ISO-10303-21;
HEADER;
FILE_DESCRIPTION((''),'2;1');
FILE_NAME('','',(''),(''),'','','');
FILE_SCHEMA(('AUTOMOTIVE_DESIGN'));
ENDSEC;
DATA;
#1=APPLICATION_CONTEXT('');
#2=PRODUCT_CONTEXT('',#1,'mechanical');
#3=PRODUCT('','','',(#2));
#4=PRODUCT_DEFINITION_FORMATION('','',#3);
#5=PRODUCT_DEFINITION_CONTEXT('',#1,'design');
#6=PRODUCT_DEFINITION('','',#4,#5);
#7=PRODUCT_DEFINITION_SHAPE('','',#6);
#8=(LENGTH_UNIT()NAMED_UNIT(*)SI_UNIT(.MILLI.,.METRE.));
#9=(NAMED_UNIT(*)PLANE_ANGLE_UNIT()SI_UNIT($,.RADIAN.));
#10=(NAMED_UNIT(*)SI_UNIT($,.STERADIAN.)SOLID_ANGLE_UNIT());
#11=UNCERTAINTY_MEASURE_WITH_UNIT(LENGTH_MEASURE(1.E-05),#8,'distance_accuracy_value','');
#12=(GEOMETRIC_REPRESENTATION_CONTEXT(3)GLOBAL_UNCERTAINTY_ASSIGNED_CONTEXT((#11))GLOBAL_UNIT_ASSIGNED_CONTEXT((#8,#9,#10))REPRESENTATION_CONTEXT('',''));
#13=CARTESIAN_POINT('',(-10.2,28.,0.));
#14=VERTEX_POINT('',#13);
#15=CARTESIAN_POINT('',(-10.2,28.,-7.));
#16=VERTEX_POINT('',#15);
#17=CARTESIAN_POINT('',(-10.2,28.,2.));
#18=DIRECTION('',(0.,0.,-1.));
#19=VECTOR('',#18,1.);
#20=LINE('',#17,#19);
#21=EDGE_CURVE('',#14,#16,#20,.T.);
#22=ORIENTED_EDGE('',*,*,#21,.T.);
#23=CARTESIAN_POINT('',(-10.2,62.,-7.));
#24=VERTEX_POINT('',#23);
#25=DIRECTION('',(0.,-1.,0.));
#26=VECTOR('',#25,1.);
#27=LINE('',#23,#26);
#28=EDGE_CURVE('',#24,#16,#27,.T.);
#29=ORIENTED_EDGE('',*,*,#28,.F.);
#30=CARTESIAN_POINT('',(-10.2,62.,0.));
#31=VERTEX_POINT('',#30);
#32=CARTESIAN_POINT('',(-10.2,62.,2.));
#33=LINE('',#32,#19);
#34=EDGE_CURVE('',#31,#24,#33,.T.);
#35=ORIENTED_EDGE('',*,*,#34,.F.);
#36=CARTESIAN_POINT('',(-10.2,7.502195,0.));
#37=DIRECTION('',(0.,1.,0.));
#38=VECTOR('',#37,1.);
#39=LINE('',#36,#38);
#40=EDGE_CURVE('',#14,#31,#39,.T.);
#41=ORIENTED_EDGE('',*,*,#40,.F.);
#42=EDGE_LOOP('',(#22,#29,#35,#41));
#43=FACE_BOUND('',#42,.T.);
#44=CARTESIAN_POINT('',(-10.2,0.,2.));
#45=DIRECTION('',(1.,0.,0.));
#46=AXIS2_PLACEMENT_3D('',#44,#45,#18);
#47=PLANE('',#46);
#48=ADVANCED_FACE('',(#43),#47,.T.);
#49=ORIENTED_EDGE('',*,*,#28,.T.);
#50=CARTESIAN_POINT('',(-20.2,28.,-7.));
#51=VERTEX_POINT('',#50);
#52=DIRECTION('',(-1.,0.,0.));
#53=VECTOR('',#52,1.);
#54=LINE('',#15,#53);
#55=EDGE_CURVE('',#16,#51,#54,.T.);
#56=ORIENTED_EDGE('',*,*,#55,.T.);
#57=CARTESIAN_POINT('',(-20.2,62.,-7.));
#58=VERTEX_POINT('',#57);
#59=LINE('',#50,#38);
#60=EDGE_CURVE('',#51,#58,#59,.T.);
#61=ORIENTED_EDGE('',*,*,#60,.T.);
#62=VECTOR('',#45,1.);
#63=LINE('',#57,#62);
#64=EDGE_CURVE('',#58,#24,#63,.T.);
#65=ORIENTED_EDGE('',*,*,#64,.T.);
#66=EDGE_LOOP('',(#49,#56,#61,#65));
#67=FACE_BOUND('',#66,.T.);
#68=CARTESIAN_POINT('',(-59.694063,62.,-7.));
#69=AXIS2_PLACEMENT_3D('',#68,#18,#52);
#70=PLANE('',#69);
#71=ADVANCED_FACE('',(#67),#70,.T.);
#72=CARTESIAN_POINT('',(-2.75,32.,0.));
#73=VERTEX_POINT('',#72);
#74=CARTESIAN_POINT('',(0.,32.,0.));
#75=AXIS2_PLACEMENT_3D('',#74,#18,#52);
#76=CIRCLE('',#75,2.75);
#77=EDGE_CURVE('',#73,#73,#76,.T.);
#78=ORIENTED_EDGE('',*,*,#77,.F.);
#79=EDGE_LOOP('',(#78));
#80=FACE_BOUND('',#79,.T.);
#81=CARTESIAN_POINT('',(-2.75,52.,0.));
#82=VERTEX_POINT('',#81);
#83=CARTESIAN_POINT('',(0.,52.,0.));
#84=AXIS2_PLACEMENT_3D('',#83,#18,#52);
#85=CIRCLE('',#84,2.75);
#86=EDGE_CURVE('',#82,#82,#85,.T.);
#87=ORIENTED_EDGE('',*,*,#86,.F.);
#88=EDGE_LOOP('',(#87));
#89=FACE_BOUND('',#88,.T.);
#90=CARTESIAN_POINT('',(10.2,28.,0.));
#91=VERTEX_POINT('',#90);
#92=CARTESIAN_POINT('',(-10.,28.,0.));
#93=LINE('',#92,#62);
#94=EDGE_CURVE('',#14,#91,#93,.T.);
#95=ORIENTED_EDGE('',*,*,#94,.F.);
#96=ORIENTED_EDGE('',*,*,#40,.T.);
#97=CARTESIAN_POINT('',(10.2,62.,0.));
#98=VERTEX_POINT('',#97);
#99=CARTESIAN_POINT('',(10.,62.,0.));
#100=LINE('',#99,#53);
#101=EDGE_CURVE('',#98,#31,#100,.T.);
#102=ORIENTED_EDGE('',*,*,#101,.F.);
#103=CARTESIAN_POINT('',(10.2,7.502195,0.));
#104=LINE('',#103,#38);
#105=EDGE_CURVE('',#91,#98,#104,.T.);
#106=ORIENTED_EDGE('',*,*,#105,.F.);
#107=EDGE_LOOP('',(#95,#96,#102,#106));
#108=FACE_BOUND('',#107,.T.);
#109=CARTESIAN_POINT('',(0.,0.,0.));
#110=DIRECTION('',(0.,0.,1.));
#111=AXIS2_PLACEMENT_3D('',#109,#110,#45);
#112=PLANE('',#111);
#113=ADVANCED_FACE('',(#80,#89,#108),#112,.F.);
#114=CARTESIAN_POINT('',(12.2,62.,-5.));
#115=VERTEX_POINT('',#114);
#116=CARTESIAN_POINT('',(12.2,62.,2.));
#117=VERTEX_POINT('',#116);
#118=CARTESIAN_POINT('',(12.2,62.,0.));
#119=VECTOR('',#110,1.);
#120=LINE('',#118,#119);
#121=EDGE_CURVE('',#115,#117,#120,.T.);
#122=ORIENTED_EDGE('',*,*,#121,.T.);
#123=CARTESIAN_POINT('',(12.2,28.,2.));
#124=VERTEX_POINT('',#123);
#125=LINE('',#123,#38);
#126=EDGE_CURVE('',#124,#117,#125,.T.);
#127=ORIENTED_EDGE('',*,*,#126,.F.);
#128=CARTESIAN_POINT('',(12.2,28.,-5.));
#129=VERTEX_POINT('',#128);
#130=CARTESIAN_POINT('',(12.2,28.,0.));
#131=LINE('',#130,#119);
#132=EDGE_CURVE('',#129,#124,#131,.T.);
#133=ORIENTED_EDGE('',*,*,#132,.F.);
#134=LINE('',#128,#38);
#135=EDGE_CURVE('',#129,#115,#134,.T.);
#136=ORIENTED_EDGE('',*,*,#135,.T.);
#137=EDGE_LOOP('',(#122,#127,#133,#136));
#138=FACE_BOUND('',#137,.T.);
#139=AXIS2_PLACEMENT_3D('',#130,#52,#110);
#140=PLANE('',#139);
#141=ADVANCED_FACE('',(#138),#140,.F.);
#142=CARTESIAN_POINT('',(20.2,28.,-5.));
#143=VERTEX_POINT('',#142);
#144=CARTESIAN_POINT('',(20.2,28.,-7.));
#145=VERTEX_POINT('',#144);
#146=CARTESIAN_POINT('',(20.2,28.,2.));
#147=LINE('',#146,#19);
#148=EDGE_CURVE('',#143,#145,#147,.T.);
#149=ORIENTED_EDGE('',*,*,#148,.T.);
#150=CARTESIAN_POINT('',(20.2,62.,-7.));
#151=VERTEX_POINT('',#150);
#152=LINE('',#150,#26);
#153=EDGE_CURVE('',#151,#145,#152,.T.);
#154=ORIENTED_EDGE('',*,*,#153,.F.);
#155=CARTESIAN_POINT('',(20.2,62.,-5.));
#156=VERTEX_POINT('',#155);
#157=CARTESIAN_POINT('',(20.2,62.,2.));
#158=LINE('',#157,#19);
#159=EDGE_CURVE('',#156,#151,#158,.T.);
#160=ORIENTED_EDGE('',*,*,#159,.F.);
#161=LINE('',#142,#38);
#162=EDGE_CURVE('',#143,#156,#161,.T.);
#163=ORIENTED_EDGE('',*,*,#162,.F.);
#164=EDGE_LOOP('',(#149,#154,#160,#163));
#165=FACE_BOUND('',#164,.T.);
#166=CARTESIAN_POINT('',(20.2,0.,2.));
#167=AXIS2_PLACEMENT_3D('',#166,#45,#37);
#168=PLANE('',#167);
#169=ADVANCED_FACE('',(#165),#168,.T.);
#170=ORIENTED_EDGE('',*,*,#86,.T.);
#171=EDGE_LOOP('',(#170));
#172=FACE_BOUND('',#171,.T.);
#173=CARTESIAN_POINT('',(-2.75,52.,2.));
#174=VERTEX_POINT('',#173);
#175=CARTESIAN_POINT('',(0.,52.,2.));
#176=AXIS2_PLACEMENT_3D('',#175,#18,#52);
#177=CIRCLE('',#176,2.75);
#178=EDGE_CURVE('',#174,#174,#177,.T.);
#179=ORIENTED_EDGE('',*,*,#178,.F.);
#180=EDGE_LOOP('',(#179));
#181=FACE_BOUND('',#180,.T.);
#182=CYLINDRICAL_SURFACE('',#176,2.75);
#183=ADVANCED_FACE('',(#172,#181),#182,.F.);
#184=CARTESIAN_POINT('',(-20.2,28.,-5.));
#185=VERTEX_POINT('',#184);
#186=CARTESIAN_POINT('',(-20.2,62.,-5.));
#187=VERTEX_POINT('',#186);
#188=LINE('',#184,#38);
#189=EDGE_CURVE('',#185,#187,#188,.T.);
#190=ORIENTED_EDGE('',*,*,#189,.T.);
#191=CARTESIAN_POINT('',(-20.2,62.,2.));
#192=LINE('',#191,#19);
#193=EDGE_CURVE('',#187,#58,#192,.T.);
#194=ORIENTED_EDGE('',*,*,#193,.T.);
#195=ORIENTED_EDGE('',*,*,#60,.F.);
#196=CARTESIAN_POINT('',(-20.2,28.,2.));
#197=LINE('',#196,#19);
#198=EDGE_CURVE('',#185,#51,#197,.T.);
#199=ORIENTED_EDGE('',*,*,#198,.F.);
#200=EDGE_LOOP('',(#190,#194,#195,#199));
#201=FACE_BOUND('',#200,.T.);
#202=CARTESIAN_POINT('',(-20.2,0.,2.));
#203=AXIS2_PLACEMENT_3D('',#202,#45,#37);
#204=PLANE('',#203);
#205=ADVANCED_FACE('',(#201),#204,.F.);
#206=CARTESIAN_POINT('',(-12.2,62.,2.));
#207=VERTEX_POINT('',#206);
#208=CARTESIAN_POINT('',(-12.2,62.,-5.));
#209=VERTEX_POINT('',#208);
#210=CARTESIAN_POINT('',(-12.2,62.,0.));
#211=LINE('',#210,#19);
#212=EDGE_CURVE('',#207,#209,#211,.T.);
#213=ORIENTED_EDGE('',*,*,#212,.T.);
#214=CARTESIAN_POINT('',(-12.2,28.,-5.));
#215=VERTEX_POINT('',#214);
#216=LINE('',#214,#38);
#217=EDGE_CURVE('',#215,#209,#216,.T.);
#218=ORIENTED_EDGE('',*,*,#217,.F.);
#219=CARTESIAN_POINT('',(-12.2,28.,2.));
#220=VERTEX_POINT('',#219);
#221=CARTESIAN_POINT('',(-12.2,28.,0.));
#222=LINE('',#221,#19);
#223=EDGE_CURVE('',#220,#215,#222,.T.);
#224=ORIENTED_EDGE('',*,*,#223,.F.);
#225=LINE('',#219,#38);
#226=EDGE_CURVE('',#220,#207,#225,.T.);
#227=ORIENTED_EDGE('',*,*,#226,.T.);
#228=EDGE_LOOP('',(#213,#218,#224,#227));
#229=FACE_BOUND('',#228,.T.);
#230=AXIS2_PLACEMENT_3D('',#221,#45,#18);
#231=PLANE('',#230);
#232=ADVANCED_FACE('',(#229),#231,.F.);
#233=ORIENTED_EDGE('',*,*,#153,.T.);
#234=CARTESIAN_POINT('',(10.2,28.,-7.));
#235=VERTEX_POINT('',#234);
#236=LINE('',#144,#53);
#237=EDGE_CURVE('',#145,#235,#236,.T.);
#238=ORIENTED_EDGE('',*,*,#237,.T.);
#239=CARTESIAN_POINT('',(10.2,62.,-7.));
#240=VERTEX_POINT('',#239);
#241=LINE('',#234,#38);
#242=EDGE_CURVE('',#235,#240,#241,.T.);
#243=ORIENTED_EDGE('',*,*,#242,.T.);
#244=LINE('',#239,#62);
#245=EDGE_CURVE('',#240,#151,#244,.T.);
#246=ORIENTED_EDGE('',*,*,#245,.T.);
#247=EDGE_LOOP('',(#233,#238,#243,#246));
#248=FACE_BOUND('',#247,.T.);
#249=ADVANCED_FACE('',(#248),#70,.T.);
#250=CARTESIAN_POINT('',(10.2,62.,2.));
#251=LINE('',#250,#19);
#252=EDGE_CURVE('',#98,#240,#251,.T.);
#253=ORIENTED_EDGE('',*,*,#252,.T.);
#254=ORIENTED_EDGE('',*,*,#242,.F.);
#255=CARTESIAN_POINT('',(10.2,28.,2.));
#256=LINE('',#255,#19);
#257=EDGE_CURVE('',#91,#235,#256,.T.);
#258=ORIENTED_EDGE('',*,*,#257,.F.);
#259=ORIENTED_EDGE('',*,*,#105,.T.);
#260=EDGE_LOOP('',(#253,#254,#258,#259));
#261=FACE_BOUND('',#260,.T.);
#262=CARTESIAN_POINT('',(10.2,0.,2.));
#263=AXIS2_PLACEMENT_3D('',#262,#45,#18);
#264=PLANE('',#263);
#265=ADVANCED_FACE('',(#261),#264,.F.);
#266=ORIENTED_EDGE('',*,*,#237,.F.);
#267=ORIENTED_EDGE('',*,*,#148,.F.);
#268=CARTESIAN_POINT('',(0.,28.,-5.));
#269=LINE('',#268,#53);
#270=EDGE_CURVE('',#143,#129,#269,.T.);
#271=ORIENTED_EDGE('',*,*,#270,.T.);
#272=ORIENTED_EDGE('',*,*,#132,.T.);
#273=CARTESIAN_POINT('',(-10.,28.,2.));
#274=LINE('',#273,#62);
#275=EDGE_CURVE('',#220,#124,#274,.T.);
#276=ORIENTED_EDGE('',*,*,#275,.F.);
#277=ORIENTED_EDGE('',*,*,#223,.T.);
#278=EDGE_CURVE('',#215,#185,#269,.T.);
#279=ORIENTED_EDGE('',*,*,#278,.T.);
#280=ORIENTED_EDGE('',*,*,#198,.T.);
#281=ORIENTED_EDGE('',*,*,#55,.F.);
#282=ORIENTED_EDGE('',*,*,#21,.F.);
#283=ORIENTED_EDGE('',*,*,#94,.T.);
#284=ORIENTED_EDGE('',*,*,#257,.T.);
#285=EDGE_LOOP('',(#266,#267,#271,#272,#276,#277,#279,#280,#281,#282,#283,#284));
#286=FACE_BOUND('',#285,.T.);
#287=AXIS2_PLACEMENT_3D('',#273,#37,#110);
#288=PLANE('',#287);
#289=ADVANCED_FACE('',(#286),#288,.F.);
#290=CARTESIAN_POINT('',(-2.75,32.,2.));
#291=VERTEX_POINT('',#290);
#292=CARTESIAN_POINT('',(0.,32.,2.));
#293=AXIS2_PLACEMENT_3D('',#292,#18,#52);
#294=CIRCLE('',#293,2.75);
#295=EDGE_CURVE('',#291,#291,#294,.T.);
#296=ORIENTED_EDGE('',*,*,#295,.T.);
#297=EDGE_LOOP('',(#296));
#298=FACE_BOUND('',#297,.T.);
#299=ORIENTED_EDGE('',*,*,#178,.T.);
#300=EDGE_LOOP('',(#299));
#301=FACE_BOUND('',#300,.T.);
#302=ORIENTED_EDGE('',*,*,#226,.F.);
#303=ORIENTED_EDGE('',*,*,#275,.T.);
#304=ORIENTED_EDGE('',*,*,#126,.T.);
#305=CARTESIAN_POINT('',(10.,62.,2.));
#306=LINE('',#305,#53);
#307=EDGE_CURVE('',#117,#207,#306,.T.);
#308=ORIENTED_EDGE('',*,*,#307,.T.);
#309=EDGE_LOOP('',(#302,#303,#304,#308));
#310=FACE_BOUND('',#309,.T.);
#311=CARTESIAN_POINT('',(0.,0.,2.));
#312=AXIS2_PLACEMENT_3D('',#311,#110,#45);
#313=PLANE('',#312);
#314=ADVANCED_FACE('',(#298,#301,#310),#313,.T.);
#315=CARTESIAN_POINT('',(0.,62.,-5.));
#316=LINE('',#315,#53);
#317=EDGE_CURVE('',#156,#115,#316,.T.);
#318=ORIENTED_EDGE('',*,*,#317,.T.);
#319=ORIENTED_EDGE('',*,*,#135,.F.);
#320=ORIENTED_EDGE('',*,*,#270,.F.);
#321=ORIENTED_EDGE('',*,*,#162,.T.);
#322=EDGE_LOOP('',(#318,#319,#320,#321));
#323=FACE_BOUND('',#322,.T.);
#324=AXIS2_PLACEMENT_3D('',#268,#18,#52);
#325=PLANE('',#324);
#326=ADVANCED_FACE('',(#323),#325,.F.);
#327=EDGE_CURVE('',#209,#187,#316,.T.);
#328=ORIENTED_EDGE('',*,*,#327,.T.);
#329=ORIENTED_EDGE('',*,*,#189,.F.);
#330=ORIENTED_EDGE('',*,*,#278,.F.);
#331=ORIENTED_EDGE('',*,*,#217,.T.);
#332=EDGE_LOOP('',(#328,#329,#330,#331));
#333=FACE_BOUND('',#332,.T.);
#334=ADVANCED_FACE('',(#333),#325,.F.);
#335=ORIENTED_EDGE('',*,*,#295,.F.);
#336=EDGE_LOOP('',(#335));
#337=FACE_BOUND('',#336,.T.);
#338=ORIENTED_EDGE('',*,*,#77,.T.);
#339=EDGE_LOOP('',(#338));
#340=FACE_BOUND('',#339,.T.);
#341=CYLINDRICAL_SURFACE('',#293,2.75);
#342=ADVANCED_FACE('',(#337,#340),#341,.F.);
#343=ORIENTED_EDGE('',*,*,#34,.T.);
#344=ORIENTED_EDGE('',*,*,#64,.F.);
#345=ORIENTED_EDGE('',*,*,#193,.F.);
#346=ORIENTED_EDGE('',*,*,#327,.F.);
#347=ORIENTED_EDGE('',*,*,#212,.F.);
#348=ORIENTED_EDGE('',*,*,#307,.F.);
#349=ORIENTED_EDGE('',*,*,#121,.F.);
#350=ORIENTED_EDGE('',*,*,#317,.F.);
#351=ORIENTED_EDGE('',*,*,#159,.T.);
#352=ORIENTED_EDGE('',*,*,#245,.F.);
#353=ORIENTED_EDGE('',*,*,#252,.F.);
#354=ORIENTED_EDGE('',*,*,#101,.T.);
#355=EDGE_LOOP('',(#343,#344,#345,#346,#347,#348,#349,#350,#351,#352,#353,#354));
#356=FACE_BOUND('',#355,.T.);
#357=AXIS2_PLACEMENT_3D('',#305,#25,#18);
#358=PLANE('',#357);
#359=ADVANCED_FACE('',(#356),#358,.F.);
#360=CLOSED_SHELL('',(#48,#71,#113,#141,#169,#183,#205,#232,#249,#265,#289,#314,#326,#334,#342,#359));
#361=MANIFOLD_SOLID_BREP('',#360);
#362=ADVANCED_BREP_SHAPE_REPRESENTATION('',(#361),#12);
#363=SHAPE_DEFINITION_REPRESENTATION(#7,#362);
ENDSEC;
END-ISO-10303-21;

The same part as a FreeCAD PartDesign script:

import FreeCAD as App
import Part
import Sketcher

V = App.Vector


def add_polygon(sketch, points):
    """Adds a closed chain of lines whose ends are joined by coincident constraints."""
    first, n = sketch.GeometryCount, len(points)
    for a, b in zip(points, points[1:] + points[:1]):
        sketch.addGeometry(Part.LineSegment(App.Vector(*a, 0), App.Vector(*b, 0)), False)
    for i in range(n):
        sketch.addConstraint(Sketcher.Constraint("Coincident", first + i, 2, first + (i + 1) % n, 1))

doc = App.newDocument("Part")
body = doc.addObject("PartDesign::Body", "Body")

sketch1 = body.newObject("Sketcher::SketchObject", "Sketch")
sketch1.AttachmentSupport = (doc.getObject("XY_Plane"), [""])
sketch1.MapMode = "FlatFace"
add_polygon(sketch1, [(-10, 62), (-10, 28), (10, 28), (10, 62)])
sketch1.addGeometry(Part.Circle(V(0, 32, 0), V(0, 0, 1), 2.8), False)
sketch1.addGeometry(Part.Circle(V(0, 52, 0), V(0, 0, 1), 2.8), False)
sketch1.addConstraint(Sketcher.Constraint("Vertical", 0))
sketch1.addConstraint(Sketcher.Constraint("Horizontal", 1))
sketch1.addConstraint(Sketcher.Constraint("Vertical", 2))
sketch1.addConstraint(Sketcher.Constraint("Horizontal", 3))
sketch1.addConstraint(Sketcher.Constraint("Equal", 4, 5))
sketch1.addConstraint(Sketcher.Constraint("PointOnObject", 4, 3, -2))
sketch1.addConstraint(Sketcher.Constraint("PointOnObject", 5, 3, -2))
sketch1.addConstraint(Sketcher.Constraint("Diameter", 4, 5.5))
sketch1.addConstraint(Sketcher.Constraint("DistanceX", 1, 1, 1, 2, 20.0))
sketch1.addConstraint(Sketcher.Constraint("DistanceY", 0, 2, 0, 1, 34.0))
sketch1.addConstraint(Sketcher.Constraint("DistanceY", -1, 1, 4, 3, 32.0))
sketch1.addConstraint(Sketcher.Constraint("DistanceY", -1, 1, 5, 3, 52.0))
sketch1.addConstraint(Sketcher.Constraint("DistanceX", 0, 2, -1, 1, 10.0))
sketch1.addConstraint(Sketcher.Constraint("DistanceY", -1, 1, 0, 2, 28.0))
pad1 = body.newObject("PartDesign::Pad", "Pad")
pad1.Profile = sketch1
pad1.Length = 2
body2 = doc.addObject("PartDesign::Body", "Body001")

sketch2 = body2.newObject("Sketcher::SketchObject", "Sketch001")
sketch2.AttachmentSupport = (doc.getObject("XY_Plane001"), [""])
sketch2.MapMode = "FlatFace"
add_polygon(sketch2, [(-10, 62), (-10, 28), (-20, 28), (-20, 62)])
sketch2.addConstraint(Sketcher.Constraint("Vertical", 0))
sketch2.addConstraint(Sketcher.Constraint("Horizontal", 1))
sketch2.addConstraint(Sketcher.Constraint("Vertical", 2))
sketch2.addConstraint(Sketcher.Constraint("Horizontal", 3))
sketch2.addConstraint(Sketcher.Constraint("DistanceX", 1, 2, 1, 1, 10.0))
sketch2.addConstraint(Sketcher.Constraint("DistanceY", 0, 2, 0, 1, 34.0))
sketch2.addConstraint(Sketcher.Constraint("DistanceY", -1, 1, 0, 2, 28.0))
sketch2.addConstraint(Sketcher.Constraint("DistanceX", 0, 2, -1, 1, 10.2))
pad2 = body2.newObject("PartDesign::Pad", "Pad001")
pad2.Profile = sketch2
pad2.Length = 2
body3 = doc.addObject("PartDesign::Body", "Body002")

sketch3 = body3.newObject("Sketcher::SketchObject", "Sketch002")
sketch3.AttachmentSupport = (doc.getObject("XY_Plane002"), [""])
sketch3.MapMode = "FlatFace"
add_polygon(sketch3, [(20, 62), (20, 28), (10, 28), (10, 62)])
sketch3.addConstraint(Sketcher.Constraint("Vertical", 0))
sketch3.addConstraint(Sketcher.Constraint("Horizontal", 1))
sketch3.addConstraint(Sketcher.Constraint("Vertical", 2))
sketch3.addConstraint(Sketcher.Constraint("Horizontal", 3))
sketch3.addConstraint(Sketcher.Constraint("DistanceX", 1, 2, 1, 1, 10.0))
sketch3.addConstraint(Sketcher.Constraint("DistanceY", 0, 2, 0, 1, 34.0))
sketch3.addConstraint(Sketcher.Constraint("DistanceY", -1, 1, 0, 2, 28.0))
sketch3.addConstraint(Sketcher.Constraint("DistanceX", -1, 1, 0, 2, 20.2))
pad3 = body3.newObject("PartDesign::Pad", "Pad002")
pad3.Profile = sketch3
pad3.Length = 2
body2.AllowCompound = True
doc.recompute()

boolean = body2.newObject("PartDesign::Boolean", "Boolean")
boolean.Type = "Fuse"
boolean.addObjects([body3])

sketch4 = body2.newObject("Sketcher::SketchObject", "Sketch003")
sketch4.AttachmentSupport = (doc.getObject("XY_Plane001"), [""])
sketch4.MapMode = "FlatFace"
add_polygon(sketch4, [(20, 62), (20, 28), (10, 28), (10, 62)])
add_polygon(sketch4, [(-10, 62), (-10, 28), (-20, 28), (-20, 62)])
sketch4.addConstraint(Sketcher.Constraint("Vertical", 0))
sketch4.addConstraint(Sketcher.Constraint("Horizontal", 1))
sketch4.addConstraint(Sketcher.Constraint("Vertical", 2))
sketch4.addConstraint(Sketcher.Constraint("Horizontal", 3))
sketch4.addConstraint(Sketcher.Constraint("Vertical", 4))
sketch4.addConstraint(Sketcher.Constraint("Horizontal", 5))
sketch4.addConstraint(Sketcher.Constraint("Vertical", 6))
sketch4.addConstraint(Sketcher.Constraint("Horizontal", 7))
sketch4.addConstraint(Sketcher.Constraint("Symmetric", 1, 2, 4, 2, -2))
sketch4.addConstraint(Sketcher.Constraint("Symmetric", 3, 2, 6, 2, -2))
sketch4.addConstraint(Sketcher.Constraint("DistanceX", 1, 2, 1, 1, 10.0))
sketch4.addConstraint(Sketcher.Constraint("DistanceY", 0, 2, 0, 1, 34.0))
sketch4.addConstraint(Sketcher.Constraint("DistanceY", -1, 1, 0, 2, 28.0))
sketch4.addConstraint(Sketcher.Constraint("DistanceX", -1, 1, 0, 2, 20.2))
pad4 = body2.newObject("PartDesign::Pad", "Pad003")
pad4.Profile = sketch4
pad4.Length = 7
pad4.Reversed = True
body.AllowCompound = True
doc.recompute()

boolean2 = body.newObject("PartDesign::Boolean", "Boolean001")
boolean2.Type = "Fuse"
boolean2.addObjects([body2])

sketch5 = body.newObject("Sketcher::SketchObject", "Sketch004")
sketch5.AttachmentSupport = (doc.getObject("XZ_Plane"), [""])
sketch5.MapMode = "FlatFace"
sketch5.AttachmentOffset = App.Placement(V(0, 0, -62), App.Rotation())
add_polygon(sketch5, [(-10.2, 0), (-10.2, 2), (10.2, 2), (10.2, 0)])
sketch5.addConstraint(Sketcher.Constraint("Vertical", 0))
sketch5.addConstraint(Sketcher.Constraint("Horizontal", 1))
sketch5.addConstraint(Sketcher.Constraint("Vertical", 2))
sketch5.addConstraint(Sketcher.Constraint("Horizontal", 3))
sketch5.addConstraint(Sketcher.Constraint("Symmetric", 2, 2, 3, 2, -1, 1))
sketch5.addConstraint(Sketcher.Constraint("DistanceY", 0, 1, 0, 2, 2.0))
sketch5.addConstraint(Sketcher.Constraint("DistanceX", 1, 1, 1, 2, 20.4))
pad5 = body.newObject("PartDesign::Pad", "Pad004")
pad5.Profile = sketch5
pad5.Length = 34

sketch6 = body.newObject("Sketcher::SketchObject", "Sketch005")
sketch6.AttachmentSupport = (doc.getObject("XZ_Plane"), [""])
sketch6.MapMode = "FlatFace"
sketch6.AttachmentOffset = App.Placement(V(0, 0, -62), App.Rotation())
add_polygon(sketch6, [(12, 2), (20, 2), (20, -5), (12, -5)])
add_polygon(sketch6, [(-12, 2), (-12, -5), (-20, -5), (-20, 2)])
sketch6.addConstraint(Sketcher.Constraint("Horizontal", 0))
sketch6.addConstraint(Sketcher.Constraint("Vertical", 1))
sketch6.addConstraint(Sketcher.Constraint("Horizontal", 2))
sketch6.addConstraint(Sketcher.Constraint("Vertical", 3))
sketch6.addConstraint(Sketcher.Constraint("Vertical", 4))
sketch6.addConstraint(Sketcher.Constraint("Horizontal", 5))
sketch6.addConstraint(Sketcher.Constraint("Vertical", 6))
sketch6.addConstraint(Sketcher.Constraint("Horizontal", 7))
sketch6.addConstraint(Sketcher.Constraint("Symmetric", 2, 2, 4, 2, -2))
sketch6.addConstraint(Sketcher.Constraint("Symmetric", 0, 2, 6, 2, -2))
sketch6.addConstraint(Sketcher.Constraint("DistanceX", 0, 1, 0, 2, 8.0))
sketch6.addConstraint(Sketcher.Constraint("DistanceY", 1, 2, 1, 1, 7.0))
sketch6.addConstraint(Sketcher.Constraint("DistanceY", -1, 1, 0, 2, 2.0))
sketch6.addConstraint(Sketcher.Constraint("DistanceX", -1, 1, 0, 2, 20.2))
pocket1 = body.newObject("PartDesign::Pocket", "Pocket")
pocket1.Profile = sketch6
pocket1.Type = "ThroughAll"
pocket1.Reversed = True

sketch7 = body.newObject("Sketcher::SketchObject", "Sketch006")
sketch7.AttachmentSupport = (doc.getObject("XY_Plane"), [""])
sketch7.MapMode = "FlatFace"
sketch7.addGeometry(Part.Circle(V(0, 52, 0), V(0, 0, 1), 2.8), False)
sketch7.addGeometry(Part.Circle(V(0, 32, 0), V(0, 0, 1), 2.8), False)
sketch7.addConstraint(Sketcher.Constraint("Equal", 0, 1))
sketch7.addConstraint(Sketcher.Constraint("PointOnObject", 0, 3, -2))
sketch7.addConstraint(Sketcher.Constraint("PointOnObject", 1, 3, -2))
sketch7.addConstraint(Sketcher.Constraint("Diameter", 0, 5.5))
sketch7.addConstraint(Sketcher.Constraint("DistanceY", -1, 1, 0, 3, 52.0))
sketch7.addConstraint(Sketcher.Constraint("DistanceY", -1, 1, 1, 3, 32.0))
pocket2 = body.newObject("PartDesign::Pocket", "Pocket001")
pocket2.Profile = sketch7
pocket2.Type = "ThroughAll"
pocket2.Reversed = True

doc.recompute()
